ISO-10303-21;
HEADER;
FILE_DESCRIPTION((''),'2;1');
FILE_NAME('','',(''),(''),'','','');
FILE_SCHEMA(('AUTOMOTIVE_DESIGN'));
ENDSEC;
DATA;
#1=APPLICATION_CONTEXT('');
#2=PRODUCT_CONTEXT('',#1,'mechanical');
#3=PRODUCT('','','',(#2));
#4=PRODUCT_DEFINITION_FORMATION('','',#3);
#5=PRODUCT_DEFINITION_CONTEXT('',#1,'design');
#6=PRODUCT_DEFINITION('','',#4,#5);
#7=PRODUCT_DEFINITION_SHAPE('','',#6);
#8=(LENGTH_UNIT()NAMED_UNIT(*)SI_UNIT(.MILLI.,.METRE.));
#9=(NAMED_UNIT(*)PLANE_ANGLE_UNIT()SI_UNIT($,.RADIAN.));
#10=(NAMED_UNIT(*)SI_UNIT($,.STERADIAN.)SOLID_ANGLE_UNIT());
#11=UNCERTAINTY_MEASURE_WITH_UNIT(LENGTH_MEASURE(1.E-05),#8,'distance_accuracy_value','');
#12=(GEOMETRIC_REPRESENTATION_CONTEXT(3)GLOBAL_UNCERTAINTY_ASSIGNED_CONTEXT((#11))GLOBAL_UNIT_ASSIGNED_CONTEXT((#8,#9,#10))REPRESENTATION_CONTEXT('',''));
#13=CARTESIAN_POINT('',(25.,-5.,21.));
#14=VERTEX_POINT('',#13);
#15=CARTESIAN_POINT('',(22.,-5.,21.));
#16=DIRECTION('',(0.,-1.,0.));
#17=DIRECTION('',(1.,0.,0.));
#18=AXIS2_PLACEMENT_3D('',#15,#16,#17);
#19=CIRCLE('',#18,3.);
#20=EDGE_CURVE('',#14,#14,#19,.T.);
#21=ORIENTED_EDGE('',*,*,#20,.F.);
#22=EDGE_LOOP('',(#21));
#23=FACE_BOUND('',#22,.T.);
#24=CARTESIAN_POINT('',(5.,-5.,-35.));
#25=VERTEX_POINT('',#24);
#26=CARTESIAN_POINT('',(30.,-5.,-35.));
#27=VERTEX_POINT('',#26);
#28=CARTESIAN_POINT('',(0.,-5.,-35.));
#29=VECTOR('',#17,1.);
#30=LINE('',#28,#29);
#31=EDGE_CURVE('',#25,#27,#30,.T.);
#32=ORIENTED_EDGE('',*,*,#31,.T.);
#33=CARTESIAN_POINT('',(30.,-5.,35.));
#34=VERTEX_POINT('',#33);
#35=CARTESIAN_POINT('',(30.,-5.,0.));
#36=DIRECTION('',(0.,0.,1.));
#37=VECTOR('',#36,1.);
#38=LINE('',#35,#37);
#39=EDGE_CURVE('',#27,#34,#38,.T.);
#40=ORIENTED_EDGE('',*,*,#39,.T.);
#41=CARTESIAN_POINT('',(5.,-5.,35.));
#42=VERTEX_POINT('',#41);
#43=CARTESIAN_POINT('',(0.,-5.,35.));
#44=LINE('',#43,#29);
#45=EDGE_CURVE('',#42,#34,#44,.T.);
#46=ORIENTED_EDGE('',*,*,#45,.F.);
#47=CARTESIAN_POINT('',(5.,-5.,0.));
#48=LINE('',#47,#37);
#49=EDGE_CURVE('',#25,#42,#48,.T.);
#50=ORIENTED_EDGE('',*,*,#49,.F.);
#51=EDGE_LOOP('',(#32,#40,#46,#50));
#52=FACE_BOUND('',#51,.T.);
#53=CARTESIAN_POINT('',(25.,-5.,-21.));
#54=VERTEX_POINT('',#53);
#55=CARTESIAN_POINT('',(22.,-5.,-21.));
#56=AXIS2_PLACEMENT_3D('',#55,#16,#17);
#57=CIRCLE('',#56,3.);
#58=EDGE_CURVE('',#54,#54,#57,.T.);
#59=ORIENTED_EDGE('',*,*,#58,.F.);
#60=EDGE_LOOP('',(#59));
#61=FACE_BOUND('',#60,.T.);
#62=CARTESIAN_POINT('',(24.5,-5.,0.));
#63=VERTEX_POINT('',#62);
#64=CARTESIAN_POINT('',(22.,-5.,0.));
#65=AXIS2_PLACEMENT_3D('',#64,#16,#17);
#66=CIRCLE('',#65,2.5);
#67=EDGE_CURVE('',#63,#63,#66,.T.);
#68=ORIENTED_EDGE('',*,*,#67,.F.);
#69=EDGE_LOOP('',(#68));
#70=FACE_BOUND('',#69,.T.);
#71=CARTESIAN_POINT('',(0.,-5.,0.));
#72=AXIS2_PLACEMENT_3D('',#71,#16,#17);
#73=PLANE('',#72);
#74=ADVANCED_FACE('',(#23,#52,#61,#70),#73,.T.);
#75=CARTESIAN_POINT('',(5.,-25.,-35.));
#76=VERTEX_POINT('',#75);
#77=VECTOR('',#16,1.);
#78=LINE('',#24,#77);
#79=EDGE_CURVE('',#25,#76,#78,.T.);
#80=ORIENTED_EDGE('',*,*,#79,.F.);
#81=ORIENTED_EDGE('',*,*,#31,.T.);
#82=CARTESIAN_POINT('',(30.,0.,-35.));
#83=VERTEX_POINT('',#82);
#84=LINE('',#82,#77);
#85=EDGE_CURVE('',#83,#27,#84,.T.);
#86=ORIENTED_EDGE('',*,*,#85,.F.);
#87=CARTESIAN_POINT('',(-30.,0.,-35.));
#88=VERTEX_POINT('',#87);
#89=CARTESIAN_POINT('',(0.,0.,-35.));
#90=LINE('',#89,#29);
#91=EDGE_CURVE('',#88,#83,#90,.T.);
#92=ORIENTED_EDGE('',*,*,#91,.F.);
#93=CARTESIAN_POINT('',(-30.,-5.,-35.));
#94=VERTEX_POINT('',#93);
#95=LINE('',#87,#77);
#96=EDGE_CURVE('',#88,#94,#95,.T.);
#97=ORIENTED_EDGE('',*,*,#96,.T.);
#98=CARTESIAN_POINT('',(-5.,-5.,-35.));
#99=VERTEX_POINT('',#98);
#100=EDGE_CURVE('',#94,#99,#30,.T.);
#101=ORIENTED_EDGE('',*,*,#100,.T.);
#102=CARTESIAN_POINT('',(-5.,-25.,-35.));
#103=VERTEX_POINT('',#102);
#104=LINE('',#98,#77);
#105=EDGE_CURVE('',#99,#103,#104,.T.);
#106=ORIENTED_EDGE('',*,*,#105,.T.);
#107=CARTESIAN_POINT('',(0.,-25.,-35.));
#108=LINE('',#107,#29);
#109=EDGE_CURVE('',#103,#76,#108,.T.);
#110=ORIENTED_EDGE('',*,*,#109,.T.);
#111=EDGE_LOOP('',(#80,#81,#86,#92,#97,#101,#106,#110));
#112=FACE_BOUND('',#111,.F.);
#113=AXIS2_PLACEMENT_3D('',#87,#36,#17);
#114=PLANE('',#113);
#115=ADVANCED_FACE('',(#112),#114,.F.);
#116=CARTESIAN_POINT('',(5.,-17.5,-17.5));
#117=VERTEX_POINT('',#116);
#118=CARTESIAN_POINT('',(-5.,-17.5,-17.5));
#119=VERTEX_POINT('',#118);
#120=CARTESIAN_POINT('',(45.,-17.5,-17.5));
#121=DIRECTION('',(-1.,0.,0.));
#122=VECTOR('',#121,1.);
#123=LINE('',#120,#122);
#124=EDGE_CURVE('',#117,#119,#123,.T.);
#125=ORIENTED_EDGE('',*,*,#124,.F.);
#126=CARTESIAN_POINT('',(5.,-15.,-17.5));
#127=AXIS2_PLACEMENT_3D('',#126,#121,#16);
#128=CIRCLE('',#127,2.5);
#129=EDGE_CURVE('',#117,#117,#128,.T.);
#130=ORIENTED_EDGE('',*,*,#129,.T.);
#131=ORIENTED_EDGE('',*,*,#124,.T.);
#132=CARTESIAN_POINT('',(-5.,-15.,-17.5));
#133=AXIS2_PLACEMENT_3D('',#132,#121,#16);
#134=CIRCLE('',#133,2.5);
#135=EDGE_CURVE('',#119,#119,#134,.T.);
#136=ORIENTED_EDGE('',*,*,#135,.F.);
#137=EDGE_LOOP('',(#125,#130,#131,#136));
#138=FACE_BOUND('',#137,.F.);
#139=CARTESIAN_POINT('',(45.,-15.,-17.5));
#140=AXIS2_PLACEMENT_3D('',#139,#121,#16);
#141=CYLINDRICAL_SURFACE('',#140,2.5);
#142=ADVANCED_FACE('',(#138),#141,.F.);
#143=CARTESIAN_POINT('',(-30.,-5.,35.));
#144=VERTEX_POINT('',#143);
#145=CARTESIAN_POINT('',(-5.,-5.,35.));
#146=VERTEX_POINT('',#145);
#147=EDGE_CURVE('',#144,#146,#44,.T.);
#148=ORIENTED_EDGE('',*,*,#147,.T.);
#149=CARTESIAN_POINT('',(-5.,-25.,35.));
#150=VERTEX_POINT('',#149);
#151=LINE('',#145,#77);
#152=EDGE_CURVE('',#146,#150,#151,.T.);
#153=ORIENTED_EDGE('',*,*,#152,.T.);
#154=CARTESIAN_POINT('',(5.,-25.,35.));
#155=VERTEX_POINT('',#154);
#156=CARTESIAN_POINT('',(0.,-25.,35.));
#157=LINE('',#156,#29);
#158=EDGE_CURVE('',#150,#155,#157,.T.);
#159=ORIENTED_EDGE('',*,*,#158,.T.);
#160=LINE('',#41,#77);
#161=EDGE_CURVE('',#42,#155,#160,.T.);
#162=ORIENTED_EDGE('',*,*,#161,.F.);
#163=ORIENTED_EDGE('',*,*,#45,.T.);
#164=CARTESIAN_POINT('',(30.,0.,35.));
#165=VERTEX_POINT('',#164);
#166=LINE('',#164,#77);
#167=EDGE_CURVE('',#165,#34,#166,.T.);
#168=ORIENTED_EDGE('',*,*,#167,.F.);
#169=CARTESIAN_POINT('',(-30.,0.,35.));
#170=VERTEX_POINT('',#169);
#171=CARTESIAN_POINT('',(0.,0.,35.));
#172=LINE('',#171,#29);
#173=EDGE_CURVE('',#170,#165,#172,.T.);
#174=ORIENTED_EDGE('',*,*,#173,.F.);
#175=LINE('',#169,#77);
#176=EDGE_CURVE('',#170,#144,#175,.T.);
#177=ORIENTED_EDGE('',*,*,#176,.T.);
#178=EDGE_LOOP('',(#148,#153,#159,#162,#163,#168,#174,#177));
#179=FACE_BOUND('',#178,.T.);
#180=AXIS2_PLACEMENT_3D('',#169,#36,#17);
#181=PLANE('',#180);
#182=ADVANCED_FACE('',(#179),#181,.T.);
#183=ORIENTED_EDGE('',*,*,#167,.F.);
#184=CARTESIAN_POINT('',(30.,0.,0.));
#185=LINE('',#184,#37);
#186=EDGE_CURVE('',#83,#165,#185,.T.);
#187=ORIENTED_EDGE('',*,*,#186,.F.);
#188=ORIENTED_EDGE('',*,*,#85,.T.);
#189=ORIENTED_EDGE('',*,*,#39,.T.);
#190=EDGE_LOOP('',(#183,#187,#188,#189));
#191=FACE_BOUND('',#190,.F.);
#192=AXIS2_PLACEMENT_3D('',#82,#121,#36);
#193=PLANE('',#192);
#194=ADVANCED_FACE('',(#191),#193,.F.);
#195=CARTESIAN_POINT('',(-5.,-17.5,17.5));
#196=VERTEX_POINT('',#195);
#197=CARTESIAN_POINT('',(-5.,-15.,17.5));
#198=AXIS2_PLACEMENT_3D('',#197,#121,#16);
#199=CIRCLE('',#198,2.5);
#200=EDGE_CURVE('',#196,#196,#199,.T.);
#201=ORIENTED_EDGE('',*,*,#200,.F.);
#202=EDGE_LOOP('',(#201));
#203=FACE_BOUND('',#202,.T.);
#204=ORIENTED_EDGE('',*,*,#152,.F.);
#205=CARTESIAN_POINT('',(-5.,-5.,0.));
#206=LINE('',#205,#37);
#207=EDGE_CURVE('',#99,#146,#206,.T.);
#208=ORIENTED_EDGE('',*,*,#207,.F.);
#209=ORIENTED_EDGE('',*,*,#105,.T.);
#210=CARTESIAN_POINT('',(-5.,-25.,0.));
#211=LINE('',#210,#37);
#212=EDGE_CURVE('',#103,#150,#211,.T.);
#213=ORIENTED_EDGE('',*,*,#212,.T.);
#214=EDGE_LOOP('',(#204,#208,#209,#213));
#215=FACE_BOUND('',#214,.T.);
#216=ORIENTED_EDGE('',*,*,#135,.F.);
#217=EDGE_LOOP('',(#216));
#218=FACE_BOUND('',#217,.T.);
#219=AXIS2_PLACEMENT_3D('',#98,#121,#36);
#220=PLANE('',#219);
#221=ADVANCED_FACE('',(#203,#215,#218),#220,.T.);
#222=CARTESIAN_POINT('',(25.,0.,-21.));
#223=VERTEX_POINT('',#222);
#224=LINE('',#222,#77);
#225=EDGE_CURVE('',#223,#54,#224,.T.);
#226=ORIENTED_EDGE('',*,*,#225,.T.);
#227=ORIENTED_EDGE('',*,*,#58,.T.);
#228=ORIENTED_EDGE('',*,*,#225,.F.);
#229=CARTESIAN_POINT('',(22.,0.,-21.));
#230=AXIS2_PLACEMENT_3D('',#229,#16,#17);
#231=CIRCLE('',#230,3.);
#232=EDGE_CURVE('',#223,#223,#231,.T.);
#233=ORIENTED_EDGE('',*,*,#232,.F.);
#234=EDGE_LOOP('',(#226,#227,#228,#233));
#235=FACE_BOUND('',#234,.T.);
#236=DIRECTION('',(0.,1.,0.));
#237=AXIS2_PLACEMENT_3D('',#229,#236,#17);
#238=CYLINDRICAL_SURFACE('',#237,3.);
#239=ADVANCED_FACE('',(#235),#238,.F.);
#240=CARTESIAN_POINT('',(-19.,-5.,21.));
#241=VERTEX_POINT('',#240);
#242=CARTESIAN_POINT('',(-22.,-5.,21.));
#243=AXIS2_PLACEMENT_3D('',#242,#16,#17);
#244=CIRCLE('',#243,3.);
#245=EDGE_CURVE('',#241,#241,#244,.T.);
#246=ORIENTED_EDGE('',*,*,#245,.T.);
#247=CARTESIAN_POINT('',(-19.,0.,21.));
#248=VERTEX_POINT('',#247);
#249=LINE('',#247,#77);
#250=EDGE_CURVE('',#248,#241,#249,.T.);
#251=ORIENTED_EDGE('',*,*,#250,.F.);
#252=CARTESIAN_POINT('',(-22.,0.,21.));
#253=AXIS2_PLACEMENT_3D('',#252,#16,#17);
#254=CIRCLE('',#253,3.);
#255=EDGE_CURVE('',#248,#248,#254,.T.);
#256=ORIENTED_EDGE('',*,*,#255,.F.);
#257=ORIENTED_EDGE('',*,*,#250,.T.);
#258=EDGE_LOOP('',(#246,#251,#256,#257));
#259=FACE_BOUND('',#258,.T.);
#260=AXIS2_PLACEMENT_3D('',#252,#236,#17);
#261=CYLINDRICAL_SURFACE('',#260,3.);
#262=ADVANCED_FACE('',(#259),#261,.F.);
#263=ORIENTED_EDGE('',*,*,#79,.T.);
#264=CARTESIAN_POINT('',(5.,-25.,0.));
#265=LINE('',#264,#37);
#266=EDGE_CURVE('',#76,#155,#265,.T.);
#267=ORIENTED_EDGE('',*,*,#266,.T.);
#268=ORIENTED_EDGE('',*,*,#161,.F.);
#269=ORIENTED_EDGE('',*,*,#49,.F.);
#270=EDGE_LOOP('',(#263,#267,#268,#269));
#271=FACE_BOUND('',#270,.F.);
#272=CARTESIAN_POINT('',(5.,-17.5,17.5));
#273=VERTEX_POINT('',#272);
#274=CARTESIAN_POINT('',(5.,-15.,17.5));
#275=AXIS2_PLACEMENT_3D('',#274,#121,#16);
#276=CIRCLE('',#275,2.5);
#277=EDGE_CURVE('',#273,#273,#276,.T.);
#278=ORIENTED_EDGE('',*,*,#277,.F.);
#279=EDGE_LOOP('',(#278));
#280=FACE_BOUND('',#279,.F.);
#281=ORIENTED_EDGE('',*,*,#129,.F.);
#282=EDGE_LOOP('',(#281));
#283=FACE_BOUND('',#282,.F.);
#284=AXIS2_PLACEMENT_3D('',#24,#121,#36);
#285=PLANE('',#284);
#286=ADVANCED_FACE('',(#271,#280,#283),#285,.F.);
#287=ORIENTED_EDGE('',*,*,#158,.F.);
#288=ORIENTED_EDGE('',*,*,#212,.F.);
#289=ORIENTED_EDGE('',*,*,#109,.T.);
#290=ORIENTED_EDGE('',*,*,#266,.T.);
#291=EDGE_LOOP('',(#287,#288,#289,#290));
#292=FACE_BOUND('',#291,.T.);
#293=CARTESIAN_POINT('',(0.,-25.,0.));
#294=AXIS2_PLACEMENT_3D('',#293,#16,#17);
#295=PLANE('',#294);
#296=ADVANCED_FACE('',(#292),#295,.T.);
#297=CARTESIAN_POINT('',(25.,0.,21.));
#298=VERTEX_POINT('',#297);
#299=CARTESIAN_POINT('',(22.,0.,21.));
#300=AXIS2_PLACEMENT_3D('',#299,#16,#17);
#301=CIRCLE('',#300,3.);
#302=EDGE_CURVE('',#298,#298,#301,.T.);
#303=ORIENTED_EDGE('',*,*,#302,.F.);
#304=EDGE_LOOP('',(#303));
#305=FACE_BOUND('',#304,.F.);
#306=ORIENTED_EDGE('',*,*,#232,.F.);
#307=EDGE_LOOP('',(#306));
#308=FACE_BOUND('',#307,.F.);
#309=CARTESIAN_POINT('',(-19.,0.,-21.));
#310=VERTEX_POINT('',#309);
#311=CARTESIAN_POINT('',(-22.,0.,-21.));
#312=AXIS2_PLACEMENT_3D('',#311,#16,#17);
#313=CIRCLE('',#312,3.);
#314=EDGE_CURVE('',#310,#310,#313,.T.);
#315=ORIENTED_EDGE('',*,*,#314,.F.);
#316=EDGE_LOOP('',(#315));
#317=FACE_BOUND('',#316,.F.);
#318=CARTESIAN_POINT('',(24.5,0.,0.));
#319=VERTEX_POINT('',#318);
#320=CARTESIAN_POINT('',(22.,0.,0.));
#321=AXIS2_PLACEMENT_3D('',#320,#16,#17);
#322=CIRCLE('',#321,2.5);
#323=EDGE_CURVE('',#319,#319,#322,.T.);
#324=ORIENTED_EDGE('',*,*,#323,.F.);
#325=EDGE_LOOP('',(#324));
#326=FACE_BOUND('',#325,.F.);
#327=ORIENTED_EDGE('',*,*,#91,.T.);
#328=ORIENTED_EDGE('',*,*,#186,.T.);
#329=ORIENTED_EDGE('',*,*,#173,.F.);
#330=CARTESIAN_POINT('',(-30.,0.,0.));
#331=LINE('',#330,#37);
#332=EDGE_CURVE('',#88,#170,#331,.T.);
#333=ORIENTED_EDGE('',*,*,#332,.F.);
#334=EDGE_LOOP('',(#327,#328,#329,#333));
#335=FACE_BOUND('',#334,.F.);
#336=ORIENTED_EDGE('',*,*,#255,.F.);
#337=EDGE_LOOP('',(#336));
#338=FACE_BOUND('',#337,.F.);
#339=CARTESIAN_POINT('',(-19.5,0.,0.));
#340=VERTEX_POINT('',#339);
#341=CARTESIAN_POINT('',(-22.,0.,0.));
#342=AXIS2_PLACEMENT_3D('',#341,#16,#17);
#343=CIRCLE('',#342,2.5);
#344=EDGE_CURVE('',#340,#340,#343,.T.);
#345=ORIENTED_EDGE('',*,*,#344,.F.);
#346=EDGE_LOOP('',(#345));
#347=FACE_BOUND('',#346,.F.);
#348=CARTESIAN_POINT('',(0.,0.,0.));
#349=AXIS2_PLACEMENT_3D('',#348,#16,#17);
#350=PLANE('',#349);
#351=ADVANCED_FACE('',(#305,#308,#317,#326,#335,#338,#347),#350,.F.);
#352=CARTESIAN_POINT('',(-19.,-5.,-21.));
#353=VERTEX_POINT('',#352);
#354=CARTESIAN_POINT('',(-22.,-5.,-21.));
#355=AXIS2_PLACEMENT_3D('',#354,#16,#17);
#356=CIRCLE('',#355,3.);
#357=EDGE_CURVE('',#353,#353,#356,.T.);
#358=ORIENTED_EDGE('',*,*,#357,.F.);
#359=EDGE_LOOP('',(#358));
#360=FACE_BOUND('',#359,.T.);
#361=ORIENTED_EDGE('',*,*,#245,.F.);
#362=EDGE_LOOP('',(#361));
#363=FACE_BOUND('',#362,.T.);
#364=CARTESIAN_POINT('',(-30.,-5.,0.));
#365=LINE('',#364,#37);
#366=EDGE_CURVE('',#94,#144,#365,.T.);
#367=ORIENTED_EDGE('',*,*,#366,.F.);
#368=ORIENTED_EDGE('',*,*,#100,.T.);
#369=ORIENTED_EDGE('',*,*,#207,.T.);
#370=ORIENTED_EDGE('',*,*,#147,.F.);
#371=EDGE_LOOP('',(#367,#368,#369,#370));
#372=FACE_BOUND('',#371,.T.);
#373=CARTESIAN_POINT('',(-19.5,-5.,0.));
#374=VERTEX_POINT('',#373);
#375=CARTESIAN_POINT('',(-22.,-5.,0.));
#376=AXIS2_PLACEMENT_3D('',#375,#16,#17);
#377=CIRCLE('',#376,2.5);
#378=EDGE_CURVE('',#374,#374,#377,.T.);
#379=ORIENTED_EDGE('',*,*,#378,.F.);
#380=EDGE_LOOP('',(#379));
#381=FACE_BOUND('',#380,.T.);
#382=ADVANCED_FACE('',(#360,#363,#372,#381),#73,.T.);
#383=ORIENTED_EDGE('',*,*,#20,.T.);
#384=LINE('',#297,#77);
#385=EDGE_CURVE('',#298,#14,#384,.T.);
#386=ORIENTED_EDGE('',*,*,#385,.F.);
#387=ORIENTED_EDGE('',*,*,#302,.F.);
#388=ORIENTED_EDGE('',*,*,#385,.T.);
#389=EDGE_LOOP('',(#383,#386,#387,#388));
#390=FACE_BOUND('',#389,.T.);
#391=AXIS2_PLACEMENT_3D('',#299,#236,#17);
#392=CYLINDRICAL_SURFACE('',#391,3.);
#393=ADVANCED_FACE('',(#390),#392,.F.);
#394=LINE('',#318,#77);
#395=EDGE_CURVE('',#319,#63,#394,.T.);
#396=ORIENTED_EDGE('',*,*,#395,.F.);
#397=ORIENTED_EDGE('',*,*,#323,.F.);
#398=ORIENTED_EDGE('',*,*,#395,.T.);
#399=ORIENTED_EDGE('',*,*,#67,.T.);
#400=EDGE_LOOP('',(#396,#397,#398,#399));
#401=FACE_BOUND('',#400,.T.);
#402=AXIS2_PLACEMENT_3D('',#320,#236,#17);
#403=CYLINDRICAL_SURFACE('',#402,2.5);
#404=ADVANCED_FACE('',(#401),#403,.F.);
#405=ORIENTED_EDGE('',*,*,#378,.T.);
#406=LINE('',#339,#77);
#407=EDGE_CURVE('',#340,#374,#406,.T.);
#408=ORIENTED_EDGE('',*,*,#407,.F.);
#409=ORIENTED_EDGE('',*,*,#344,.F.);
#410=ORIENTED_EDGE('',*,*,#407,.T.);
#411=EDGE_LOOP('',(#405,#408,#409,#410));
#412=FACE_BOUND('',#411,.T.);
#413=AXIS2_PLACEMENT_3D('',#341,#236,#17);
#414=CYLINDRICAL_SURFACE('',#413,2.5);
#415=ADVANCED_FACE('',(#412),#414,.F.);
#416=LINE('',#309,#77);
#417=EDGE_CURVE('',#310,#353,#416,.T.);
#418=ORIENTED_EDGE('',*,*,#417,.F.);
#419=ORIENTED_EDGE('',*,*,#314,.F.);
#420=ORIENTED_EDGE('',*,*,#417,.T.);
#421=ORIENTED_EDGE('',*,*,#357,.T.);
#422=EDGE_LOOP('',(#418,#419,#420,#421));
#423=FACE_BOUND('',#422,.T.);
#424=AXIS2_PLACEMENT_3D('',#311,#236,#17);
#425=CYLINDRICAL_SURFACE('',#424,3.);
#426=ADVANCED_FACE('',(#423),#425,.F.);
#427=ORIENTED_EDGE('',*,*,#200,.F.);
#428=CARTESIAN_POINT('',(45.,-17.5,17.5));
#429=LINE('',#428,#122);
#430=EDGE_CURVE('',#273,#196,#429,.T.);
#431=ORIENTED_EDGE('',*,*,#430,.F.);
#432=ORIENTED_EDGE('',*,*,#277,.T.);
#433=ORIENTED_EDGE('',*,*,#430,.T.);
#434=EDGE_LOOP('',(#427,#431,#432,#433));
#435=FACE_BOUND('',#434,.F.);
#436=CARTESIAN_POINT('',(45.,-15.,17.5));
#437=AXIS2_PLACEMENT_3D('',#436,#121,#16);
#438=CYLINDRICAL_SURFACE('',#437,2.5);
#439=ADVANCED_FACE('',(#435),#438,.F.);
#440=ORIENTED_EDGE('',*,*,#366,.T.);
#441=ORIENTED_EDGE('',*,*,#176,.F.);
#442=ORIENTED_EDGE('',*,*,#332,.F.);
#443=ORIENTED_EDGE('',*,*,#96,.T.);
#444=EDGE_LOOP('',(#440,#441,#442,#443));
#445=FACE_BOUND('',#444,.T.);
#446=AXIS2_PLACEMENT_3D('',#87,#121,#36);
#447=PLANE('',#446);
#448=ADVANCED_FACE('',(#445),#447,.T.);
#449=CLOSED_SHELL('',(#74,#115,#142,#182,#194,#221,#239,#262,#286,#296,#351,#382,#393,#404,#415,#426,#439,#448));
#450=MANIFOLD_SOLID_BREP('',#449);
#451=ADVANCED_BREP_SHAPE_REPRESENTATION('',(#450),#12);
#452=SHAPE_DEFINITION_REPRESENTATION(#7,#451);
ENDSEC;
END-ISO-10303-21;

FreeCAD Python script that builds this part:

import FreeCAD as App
import Part
import Sketcher
Q = App.Units.Quantity

doc = App.newDocument("Part")
body = doc.addObject("PartDesign::Body", "Body")

# Sketch on XZ plane
sketch1 = body.newObject("Sketcher::SketchObject", "Sketch")
sketch1.AttachmentSupport = (doc.getObject("XZ_Plane"), [""])
sketch1.MapMode = "FlatFace"
sketch1.addGeometry([
    Part.LineSegment(App.Vector(-30, 35, 0), App.Vector(-30, -35, 0)),  # 0
    Part.LineSegment(App.Vector(-30, -35, 0), App.Vector(30, -35, 0)),  # 1
    Part.LineSegment(App.Vector(30, -35, 0), App.Vector(30, 35, 0)),  # 2
    Part.LineSegment(App.Vector(30, 35, 0), App.Vector(-30, 35, 0)),  # 3
    Part.Circle(App.Vector(-22, -21, 0), App.Vector(0, 0, 1), 3),  # 4
    Part.Circle(App.Vector(22, -21, 0), App.Vector(0, 0, 1), 3),  # 5
    Part.Circle(App.Vector(-22, 0, 0), App.Vector(0, 0, 1), 2.5),  # 6
    Part.Circle(App.Vector(-22, 21, 0), App.Vector(0, 0, 1), 3),  # 7
    Part.Circle(App.Vector(22, 0, 0), App.Vector(0, 0, 1), 2.5),  # 8
    Part.Circle(App.Vector(22, 21, 0), App.Vector(0, 0, 1), 3),  # 9
], False)
sketch1.addConstraint([
    Sketcher.Constraint("Coincident", 0, 2, 1, 1),
    Sketcher.Constraint("Coincident", 1, 2, 2, 1),
    Sketcher.Constraint("Coincident", 2, 2, 3, 1),
    Sketcher.Constraint("Coincident", 3, 2, 0, 1),
    Sketcher.Constraint("Vertical", 0),
    Sketcher.Constraint("Horizontal", 1),
    Sketcher.Constraint("Vertical", 2),
    Sketcher.Constraint("Horizontal", 3),
    Sketcher.Constraint("Equal", 4, 5),
    Sketcher.Constraint("Equal", 5, 7),
    Sketcher.Constraint("Equal", 6, 8),
    Sketcher.Constraint("Equal", 7, 9),
    Sketcher.Constraint("Symmetric", 5, 3, 7, 3, -1, 1),
    Sketcher.Constraint("Symmetric", 6, 3, 8, 3, -1, 1),
    Sketcher.Constraint("Symmetric", 4, 3, 9, 3, -1, 1),
    Sketcher.Constraint("Symmetric", 0, 2, 2, 2, -1, 1),
    Sketcher.Constraint("Symmetric", 4, 3, 5, 3, -2),
    Sketcher.Constraint("PointOnObject", 6, 3, -1),
    Sketcher.Constraint("Vertical", 4, 3, 6, 3),
    Sketcher.Constraint("Diameter", 4, Q("6 mm")),
    Sketcher.Constraint("Diameter", 6, Q("5 mm")),
    Sketcher.Constraint("DistanceX", 1, 1, 1, 2, Q("60 mm")),
    Sketcher.Constraint("DistanceY", 0, 2, 0, 1, Q("70 mm")),
    Sketcher.Constraint("DistanceX", 4, 3, -1, 1, Q("22 mm")),
    Sketcher.Constraint("DistanceY", 4, 3, -1, 1, Q("21 mm")),
])
pad1 = body.newObject("PartDesign::Pad", "Pad")
pad1.Profile = sketch1
pad1.Length = 5

# Sketch on XZ plane
sketch2 = body.newObject("Sketcher::SketchObject", "Sketch001")
sketch2.AttachmentSupport = (doc.getObject("XZ_Plane"), [""])
sketch2.MapMode = "FlatFace"
sketch2.AttachmentOffset = App.Placement(App.Vector(0, 0, 5), App.Rotation())
sketch2.addGeometry([
    Part.LineSegment(App.Vector(-5, 35, 0), App.Vector(-5, -35, 0)),
    Part.LineSegment(App.Vector(-5, -35, 0), App.Vector(5, -35, 0)),
    Part.LineSegment(App.Vector(5, -35, 0), App.Vector(5, 35, 0)),
    Part.LineSegment(App.Vector(5, 35, 0), App.Vector(-5, 35, 0)),
], False)
sketch2.addConstraint([
    Sketcher.Constraint("Coincident", 0, 2, 1, 1),
    Sketcher.Constraint("Coincident", 1, 2, 2, 1),
    Sketcher.Constraint("Coincident", 2, 2, 3, 1),
    Sketcher.Constraint("Coincident", 3, 2, 0, 1),
    Sketcher.Constraint("Vertical", 0),
    Sketcher.Constraint("Horizontal", 1),
    Sketcher.Constraint("Vertical", 2),
    Sketcher.Constraint("Horizontal", 3),
    Sketcher.Constraint("Symmetric", 0, 2, 2, 2, -1, 1),
    Sketcher.Constraint("DistanceX", 1, 1, 1, 2, Q("10 mm")),
    Sketcher.Constraint("DistanceY", 0, 2, 0, 1, Q("70 mm")),
])
pad2 = body.newObject("PartDesign::Pad", "Pad001")
pad2.Profile = sketch2
pad2.Length = 20

# Sketch on YZ plane
sketch3 = body.newObject("Sketcher::SketchObject", "Sketch002")
sketch3.AttachmentSupport = (doc.getObject("YZ_Plane"), [""])
sketch3.MapMode = "FlatFace"
sketch3.AttachmentOffset = App.Placement(App.Vector(0, 0, 5), App.Rotation())
sketch3.addGeometry([
    Part.Circle(App.Vector(-15, 17.5, 0), App.Vector(0, 0, 1), 2.5),
    Part.Circle(App.Vector(-15, -17.5, 0), App.Vector(0, 0, 1), 2.5),
], False)
sketch3.addConstraint([
    Sketcher.Constraint("Equal", 0, 1),
    Sketcher.Constraint("Symmetric", 0, 3, 1, 3, -1),
    Sketcher.Constraint("Diameter", 0, Q("5 mm")),
    Sketcher.Constraint("DistanceX", 0, 3, -1, 1, Q("15 mm")),
    Sketcher.Constraint("DistanceY", 1, 3, 0, 3, Q("35 mm")),
])
doc.recompute()
hole = body.newObject("PartDesign::Hole", "Hole")
hole.Profile = sketch3
hole.ThreadType = "None"
hole.Diameter = 5
hole.DepthType = "Dimension"
hole.Depth = 40
hole.DrillPoint = "Flat"

doc.recompute()
